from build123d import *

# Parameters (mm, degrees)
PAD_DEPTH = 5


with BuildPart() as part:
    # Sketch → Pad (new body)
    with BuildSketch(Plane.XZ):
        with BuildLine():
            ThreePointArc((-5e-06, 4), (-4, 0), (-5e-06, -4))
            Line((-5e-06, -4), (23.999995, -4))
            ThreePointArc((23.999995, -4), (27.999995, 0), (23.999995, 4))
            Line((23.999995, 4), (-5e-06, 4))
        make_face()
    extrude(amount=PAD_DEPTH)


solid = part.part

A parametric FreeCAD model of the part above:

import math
import FreeCAD as App
import Part
import Sketcher

V = App.Vector

doc = App.newDocument("Part")
body = doc.addObject("PartDesign::Body", "Body")

# Sketch on XZ plane
sketch1 = body.newObject("Sketcher::SketchObject", "Sketch")
sketch1.AttachmentSupport = (doc.getObject("XZ_Plane"), [""])
sketch1.MapMode = "FlatFace"
sketch1.addGeometry([
    Part.ArcOfCircle(Part.Circle(V(0, 0, 0), V(0, 0, 1), 4), math.radians(90), math.radians(270)),
    Part.LineSegment(V(0, -4, 0), V(24, -4, 0)),
    Part.ArcOfCircle(Part.Circle(V(24, 0, 0), V(0, 0, 1), 4), math.radians(-90), math.radians(90)),
    Part.LineSegment(V(24, 4, 0), V(0, 4, 0)),
], False)
sketch1.addConstraint([
    Sketcher.Constraint("Tangent", 0, 2, 1, 1),
    Sketcher.Constraint("Tangent", 1, 2, 2, 1),
    Sketcher.Constraint("Tangent", 2, 2, 3, 1),
    Sketcher.Constraint("Tangent", 3, 2, 0, 1),
    Sketcher.Constraint("Horizontal", 1),
    Sketcher.Constraint("Horizontal", 3),
    Sketcher.Constraint("Coincident", 0, 3, -1, 1),
    Sketcher.Constraint("Radius", 0, 4.0),
    Sketcher.Constraint("DistanceX", 1, 1, 1, 2, 24.0),
])
pad1 = body.newObject("PartDesign::Pad", "Pad")
pad1.Profile = sketch1
pad1.Length = 5

doc.recompute()
